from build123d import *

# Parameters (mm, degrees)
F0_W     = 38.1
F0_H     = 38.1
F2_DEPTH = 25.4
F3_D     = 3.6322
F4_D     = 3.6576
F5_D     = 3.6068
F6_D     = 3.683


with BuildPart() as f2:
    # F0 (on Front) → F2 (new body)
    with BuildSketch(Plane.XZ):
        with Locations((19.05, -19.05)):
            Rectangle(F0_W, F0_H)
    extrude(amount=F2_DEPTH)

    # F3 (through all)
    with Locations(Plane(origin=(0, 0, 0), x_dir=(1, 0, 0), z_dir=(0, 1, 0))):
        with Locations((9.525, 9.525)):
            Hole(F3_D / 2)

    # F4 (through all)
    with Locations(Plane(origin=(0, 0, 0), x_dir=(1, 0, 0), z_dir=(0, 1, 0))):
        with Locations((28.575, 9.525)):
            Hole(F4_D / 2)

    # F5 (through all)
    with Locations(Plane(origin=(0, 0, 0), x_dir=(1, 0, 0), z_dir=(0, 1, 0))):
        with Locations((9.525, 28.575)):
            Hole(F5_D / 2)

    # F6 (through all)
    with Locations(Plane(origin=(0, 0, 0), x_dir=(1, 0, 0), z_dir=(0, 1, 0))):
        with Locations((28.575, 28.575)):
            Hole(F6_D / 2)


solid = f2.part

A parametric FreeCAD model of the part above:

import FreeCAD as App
import Part
import Sketcher

V = App.Vector
Q = App.Units.Quantity

doc = App.newDocument("Part")
body = doc.addObject("PartDesign::Body", "Body")

sketch1 = doc.addObject("Sketcher::SketchObject", "Sketch")
body.addObject(sketch1)
sketch1.AttachmentSupport = (doc.XZ_Plane, [""])
sketch1.MapMode = "FlatFace"
sketch1.addGeometry(Part.LineSegment(V(0, 0, 0), V(0, -38, 0)), False)
sketch1.addGeometry(Part.LineSegment(V(0, -38, 0), V(38, -38, 0)), False)
sketch1.addGeometry(Part.LineSegment(V(38, -38, 0), V(38, 0, 0)), False)
sketch1.addGeometry(Part.LineSegment(V(38, 0, 0), V(0, 0, 0)), False)
sketch1.addConstraint(Sketcher.Constraint("Coincident", 0, 2, 1, 1))
sketch1.addConstraint(Sketcher.Constraint("Coincident", 1, 2, 2, 1))
sketch1.addConstraint(Sketcher.Constraint("Coincident", 2, 2, 3, 1))
sketch1.addConstraint(Sketcher.Constraint("Coincident", 3, 2, 0, 1))
sketch1.addConstraint(Sketcher.Constraint("Vertical", 0))
sketch1.addConstraint(Sketcher.Constraint("Horizontal", 1))
sketch1.addConstraint(Sketcher.Constraint("Vertical", 2))
sketch1.addConstraint(Sketcher.Constraint("Horizontal", 3))
sketch1.addConstraint(Sketcher.Constraint("Coincident", 3, 2, -1, 1))
sketch1.addConstraint(Sketcher.Constraint("Equal", 3, 0))
sketch1.addConstraint(Sketcher.Constraint("DistanceX", 1, 1, 1, 2, Q("1.5 in")))
pad1 = doc.addObject("PartDesign::Pad", "Pad")
body.addObject(pad1)
pad1.Profile = sketch1
pad1.Length = Q("1 in")

sketch2 = doc.addObject("Sketcher::SketchObject", "Sketch001")
body.addObject(sketch2)
sketch2.AttachmentSupport = (doc.XZ_Plane, [""])
sketch2.MapMode = "FlatFace"
sketch2.addGeometry(Part.Circle(V(9.5, -9.5, 0), V(0, 0, 1), 1.8), False)
sketch2.addConstraint(Sketcher.Constraint("Diameter", 0, Q("0.143 in")))
sketch2.addConstraint(Sketcher.Constraint("DistanceX", -1, 1, 0, 3, Q("0.375 in")))
sketch2.addConstraint(Sketcher.Constraint("DistanceY", 0, 3, -1, 1, Q("0.375 in")))
doc.recompute()
hole = doc.addObject("PartDesign::Hole", "Hole")
body.addObject(hole)
hole.Profile = sketch2
hole.ThreadType = "None"
hole.Diameter = Q("0.143 in")
hole.DepthType = "ThroughAll"
hole.Reversed = True

sketch3 = doc.addObject("Sketcher::SketchObject", "Sketch002")
body.addObject(sketch3)
sketch3.AttachmentSupport = (doc.XZ_Plane, [""])
sketch3.MapMode = "FlatFace"
sketch3.addGeometry(Part.Circle(V(28.6, -9.5, 0), V(0, 0, 1), 1.8), False)
sketch3.addConstraint(Sketcher.Constraint("Diameter", 0, Q("0.144 in")))
sketch3.addConstraint(Sketcher.Constraint("DistanceX", -1, 1, 0, 3, Q("1.125 in")))
sketch3.addConstraint(Sketcher.Constraint("DistanceY", 0, 3, -1, 1, Q("0.375 in")))
doc.recompute()
hole2 = doc.addObject("PartDesign::Hole", "Hole001")
body.addObject(hole2)
hole2.Profile = sketch3
hole2.ThreadType = "None"
hole2.Diameter = Q("0.144 in")
hole2.DepthType = "ThroughAll"
hole2.Reversed = True

sketch4 = doc.addObject("Sketcher::SketchObject", "Sketch003")
body.addObject(sketch4)
sketch4.AttachmentSupport = (doc.XZ_Plane, [""])
sketch4.MapMode = "FlatFace"
sketch4.addGeometry(Part.Circle(V(9.5, -28.6, 0), V(0, 0, 1), 1.8), False)
sketch4.addConstraint(Sketcher.Constraint("Diameter", 0, Q("0.142 in")))
sketch4.addConstraint(Sketcher.Constraint("DistanceX", -1, 1, 0, 3, Q("0.375 in")))
sketch4.addConstraint(Sketcher.Constraint("DistanceY", 0, 3, -1, 1, Q("1.125 in")))
doc.recompute()
hole3 = doc.addObject("PartDesign::Hole", "Hole002")
body.addObject(hole3)
hole3.Profile = sketch4
hole3.ThreadType = "None"
hole3.Diameter = Q("0.142 in")
hole3.DepthType = "ThroughAll"
hole3.Reversed = True

sketch5 = doc.addObject("Sketcher::SketchObject", "Sketch004")
body.addObject(sketch5)
sketch5.AttachmentSupport = (doc.XZ_Plane, [""])
sketch5.MapMode = "FlatFace"
sketch5.addGeometry(Part.Circle(V(28.6, -28.6, 0), V(0, 0, 1), 1.8), False)
sketch5.addConstraint(Sketcher.Constraint("Diameter", 0, Q("0.145 in")))
sketch5.addConstraint(Sketcher.Constraint("DistanceX", -1, 1, 0, 3, Q("1.125 in")))
sketch5.addConstraint(Sketcher.Constraint("DistanceY", 0, 3, -1, 1, Q("1.125 in")))
doc.recompute()
hole4 = doc.addObject("PartDesign::Hole", "Hole003")
body.addObject(hole4)
hole4.Profile = sketch5
hole4.ThreadType = "None"
hole4.Diameter = Q("0.145 in")
hole4.DepthType = "ThroughAll"
hole4.Reversed = True

doc.recompute()
